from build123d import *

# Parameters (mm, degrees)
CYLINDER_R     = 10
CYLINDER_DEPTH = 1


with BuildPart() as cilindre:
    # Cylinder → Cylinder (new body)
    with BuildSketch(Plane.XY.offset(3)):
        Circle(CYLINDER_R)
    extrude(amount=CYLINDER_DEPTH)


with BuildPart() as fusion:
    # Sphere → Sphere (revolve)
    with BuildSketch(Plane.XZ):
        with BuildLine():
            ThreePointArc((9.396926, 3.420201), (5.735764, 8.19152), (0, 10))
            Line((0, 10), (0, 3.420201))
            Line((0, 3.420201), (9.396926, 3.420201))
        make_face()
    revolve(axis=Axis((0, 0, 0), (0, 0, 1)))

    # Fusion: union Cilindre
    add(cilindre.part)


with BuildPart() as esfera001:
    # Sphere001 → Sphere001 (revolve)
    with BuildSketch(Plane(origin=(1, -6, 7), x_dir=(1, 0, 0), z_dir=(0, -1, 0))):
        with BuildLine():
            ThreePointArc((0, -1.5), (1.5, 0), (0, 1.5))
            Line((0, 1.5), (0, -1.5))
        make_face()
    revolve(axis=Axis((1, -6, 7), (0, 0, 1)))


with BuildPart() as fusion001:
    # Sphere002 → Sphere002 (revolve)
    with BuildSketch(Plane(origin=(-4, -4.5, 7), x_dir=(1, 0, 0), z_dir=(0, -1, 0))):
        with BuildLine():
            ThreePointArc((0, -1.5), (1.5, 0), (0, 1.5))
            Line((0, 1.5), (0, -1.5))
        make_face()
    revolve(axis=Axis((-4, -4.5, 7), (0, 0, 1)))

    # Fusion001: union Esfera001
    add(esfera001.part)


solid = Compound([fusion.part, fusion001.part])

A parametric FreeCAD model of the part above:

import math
import FreeCAD as App
import Part
import Sketcher

V = App.Vector

doc = App.newDocument("Part")
body = doc.addObject("PartDesign::Body", "Body")

# Sketch on XY plane
sketch1 = doc.addObject("Sketcher::SketchObject", "Sketch")
body.addObject(sketch1)
sketch1.AttachmentSupport = (doc.XY_Plane, [""])
sketch1.MapMode = "FlatFace"
sketch1.AttachmentOffset = App.Placement(V(0, 0, 3), App.Rotation())
sketch1.addGeometry(Part.Circle(V(0, 0, 0), V(0, 0, 1), 10), False)
sketch1.addConstraint(Sketcher.Constraint("Coincident", 0, 3, -1, 1))
sketch1.addConstraint(Sketcher.Constraint("Diameter", 0, 20.0))
pad1 = doc.addObject("PartDesign::Pad", "Pad")
body.addObject(pad1)
pad1.Profile = sketch1
pad1.Length = 1
body2 = doc.addObject("PartDesign::Body", "Body001")

# Sketch on XZ plane
sketch2 = doc.addObject("Sketcher::SketchObject", "Sketch001")
body2.addObject(sketch2)
sketch2.AttachmentSupport = (doc.getObject("XZ_Plane001"), [""])
sketch2.MapMode = "FlatFace"
sketch2.addGeometry(Part.ArcOfCircle(Part.Circle(V(0, 0, 0), V(0, 0, 1), 10), math.radians(20), math.radians(90)), False)
sketch2.addGeometry(Part.LineSegment(V(0, 10, 0), V(0, 3, 0)), False)
sketch2.addGeometry(Part.LineSegment(V(0, 3, 0), V(9, 3, 0)), False)
sketch2.addConstraint(Sketcher.Constraint("Coincident", 0, 2, 1, 1))
sketch2.addConstraint(Sketcher.Constraint("Coincident", 1, 2, 2, 1))
sketch2.addConstraint(Sketcher.Constraint("Coincident", 2, 2, 0, 1))
sketch2.addConstraint(Sketcher.Constraint("Vertical", 1))
sketch2.addConstraint(Sketcher.Constraint("Horizontal", 2))
sketch2.addConstraint(Sketcher.Constraint("Coincident", 0, 3, -1, 1))
sketch2.addConstraint(Sketcher.Constraint("PointOnObject", 0, 2, -2))
sketch2.addConstraint(Sketcher.Constraint("Radius", 0, 10.000002))
sketch2.addConstraint(Sketcher.Constraint("DistanceY", 1, 2, 1, 1, 6.579799))
revolution = doc.addObject("PartDesign::Revolution", "Revolution")
body2.addObject(revolution)
revolution.Profile = sketch2
revolution.ReferenceAxis = (sketch2, ["V_Axis"])
revolution.Angle = 360
doc.recompute()

boolean = doc.addObject("PartDesign::Boolean", "Boolean")
body2.addObject(boolean)
boolean.Type = "Fuse"
boolean.addObjects([body])
body3 = doc.addObject("PartDesign::Body", "Body002")

# Sketch on XZ plane
sketch3 = doc.addObject("Sketcher::SketchObject", "Sketch002")
body3.addObject(sketch3)
sketch3.AttachmentSupport = (doc.getObject("XZ_Plane002"), [""])
sketch3.MapMode = "FlatFace"
sketch3.AttachmentOffset = App.Placement(V(0, 0, 6), App.Rotation())
sketch3.addGeometry(Part.ArcOfCircle(Part.Circle(V(1, 7, 0), V(0, 0, 1), 1.5), math.radians(-90), math.radians(90)), False)
sketch3.addGeometry(Part.LineSegment(V(1, 8.5, 0), V(1, 5.5, 0)), False)
sketch3.addGeometry(Part.LineSegment(V(1, 5.5, 0), V(1, 8.5, 0)), True)  # axis
sketch3.addConstraint(Sketcher.Constraint("Coincident", 0, 1, 1, 2))
sketch3.addConstraint(Sketcher.Constraint("Coincident", 1, 1, 0, 2))
sketch3.addConstraint(Sketcher.Constraint("Vertical", 1))
sketch3.addConstraint(Sketcher.Constraint("Vertical", 2))
sketch3.addConstraint(Sketcher.Constraint("Coincident", 2, 1, 0, 1))
sketch3.addConstraint(Sketcher.Constraint("Equal", 1, 2))
sketch3.addConstraint(Sketcher.Constraint("Radius", 0, 1.5))
sketch3.addConstraint(Sketcher.Constraint("DistanceX", -1, 1, 0, 3, 1.0))
sketch3.addConstraint(Sketcher.Constraint("DistanceY", -1, 1, 0, 3, 7.0))
sketch3.addConstraint(Sketcher.Constraint("DistanceX", -1, 1, 0, 1, 1.0))
revolution2 = doc.addObject("PartDesign::Revolution", "Revolution001")
body3.addObject(revolution2)
revolution2.Profile = sketch3
revolution2.ReferenceAxis = (sketch3, ["Axis0"])
revolution2.Angle = 360
body4 = doc.addObject("PartDesign::Body", "Body003")
body4.AllowCompound = True

# Sketch on XZ plane
sketch4 = doc.addObject("Sketcher::SketchObject", "Sketch003")
body4.addObject(sketch4)
sketch4.AttachmentSupport = (doc.getObject("XZ_Plane003"), [""])
sketch4.MapMode = "FlatFace"
sketch4.AttachmentOffset = App.Placement(V(0, 0, 4.5), App.Rotation())
sketch4.addGeometry(Part.ArcOfCircle(Part.Circle(V(-4, 7, 0), V(0, 0, 1), 1.5), math.radians(-90), math.radians(90)), False)
sketch4.addGeometry(Part.LineSegment(V(-4, 8.5, 0), V(-4, 5.5, 0)), False)
sketch4.addGeometry(Part.LineSegment(V(-4, 5.5, 0), V(-4, 8.5, 0)), True)  # axis
sketch4.addConstraint(Sketcher.Constraint("Coincident", 0, 1, 1, 2))
sketch4.addConstraint(Sketcher.Constraint("Coincident", 1, 1, 0, 2))
sketch4.addConstraint(Sketcher.Constraint("Vertical", 1))
sketch4.addConstraint(Sketcher.Constraint("Vertical", 2))
sketch4.addConstraint(Sketcher.Constraint("Coincident", 2, 1, 0, 1))
sketch4.addConstraint(Sketcher.Constraint("Equal", 1, 2))
sketch4.addConstraint(Sketcher.Constraint("Radius", 0, 1.5))
sketch4.addConstraint(Sketcher.Constraint("DistanceX", 0, 3, -1, 1, 4.0))
sketch4.addConstraint(Sketcher.Constraint("DistanceY", -1, 1, 0, 3, 7.0))
sketch4.addConstraint(Sketcher.Constraint("DistanceX", 0, 1, -1, 1, 4.0))
revolution3 = doc.addObject("PartDesign::Revolution", "Revolution002")
body4.addObject(revolution3)
revolution3.Profile = sketch4
revolution3.ReferenceAxis = (sketch4, ["Axis0"])
revolution3.Angle = 360
doc.recompute()

boolean2 = doc.addObject("PartDesign::Boolean", "Boolean001")
body4.addObject(boolean2)
boolean2.Type = "Fuse"
boolean2.addObjects([body3])

doc.recompute()
